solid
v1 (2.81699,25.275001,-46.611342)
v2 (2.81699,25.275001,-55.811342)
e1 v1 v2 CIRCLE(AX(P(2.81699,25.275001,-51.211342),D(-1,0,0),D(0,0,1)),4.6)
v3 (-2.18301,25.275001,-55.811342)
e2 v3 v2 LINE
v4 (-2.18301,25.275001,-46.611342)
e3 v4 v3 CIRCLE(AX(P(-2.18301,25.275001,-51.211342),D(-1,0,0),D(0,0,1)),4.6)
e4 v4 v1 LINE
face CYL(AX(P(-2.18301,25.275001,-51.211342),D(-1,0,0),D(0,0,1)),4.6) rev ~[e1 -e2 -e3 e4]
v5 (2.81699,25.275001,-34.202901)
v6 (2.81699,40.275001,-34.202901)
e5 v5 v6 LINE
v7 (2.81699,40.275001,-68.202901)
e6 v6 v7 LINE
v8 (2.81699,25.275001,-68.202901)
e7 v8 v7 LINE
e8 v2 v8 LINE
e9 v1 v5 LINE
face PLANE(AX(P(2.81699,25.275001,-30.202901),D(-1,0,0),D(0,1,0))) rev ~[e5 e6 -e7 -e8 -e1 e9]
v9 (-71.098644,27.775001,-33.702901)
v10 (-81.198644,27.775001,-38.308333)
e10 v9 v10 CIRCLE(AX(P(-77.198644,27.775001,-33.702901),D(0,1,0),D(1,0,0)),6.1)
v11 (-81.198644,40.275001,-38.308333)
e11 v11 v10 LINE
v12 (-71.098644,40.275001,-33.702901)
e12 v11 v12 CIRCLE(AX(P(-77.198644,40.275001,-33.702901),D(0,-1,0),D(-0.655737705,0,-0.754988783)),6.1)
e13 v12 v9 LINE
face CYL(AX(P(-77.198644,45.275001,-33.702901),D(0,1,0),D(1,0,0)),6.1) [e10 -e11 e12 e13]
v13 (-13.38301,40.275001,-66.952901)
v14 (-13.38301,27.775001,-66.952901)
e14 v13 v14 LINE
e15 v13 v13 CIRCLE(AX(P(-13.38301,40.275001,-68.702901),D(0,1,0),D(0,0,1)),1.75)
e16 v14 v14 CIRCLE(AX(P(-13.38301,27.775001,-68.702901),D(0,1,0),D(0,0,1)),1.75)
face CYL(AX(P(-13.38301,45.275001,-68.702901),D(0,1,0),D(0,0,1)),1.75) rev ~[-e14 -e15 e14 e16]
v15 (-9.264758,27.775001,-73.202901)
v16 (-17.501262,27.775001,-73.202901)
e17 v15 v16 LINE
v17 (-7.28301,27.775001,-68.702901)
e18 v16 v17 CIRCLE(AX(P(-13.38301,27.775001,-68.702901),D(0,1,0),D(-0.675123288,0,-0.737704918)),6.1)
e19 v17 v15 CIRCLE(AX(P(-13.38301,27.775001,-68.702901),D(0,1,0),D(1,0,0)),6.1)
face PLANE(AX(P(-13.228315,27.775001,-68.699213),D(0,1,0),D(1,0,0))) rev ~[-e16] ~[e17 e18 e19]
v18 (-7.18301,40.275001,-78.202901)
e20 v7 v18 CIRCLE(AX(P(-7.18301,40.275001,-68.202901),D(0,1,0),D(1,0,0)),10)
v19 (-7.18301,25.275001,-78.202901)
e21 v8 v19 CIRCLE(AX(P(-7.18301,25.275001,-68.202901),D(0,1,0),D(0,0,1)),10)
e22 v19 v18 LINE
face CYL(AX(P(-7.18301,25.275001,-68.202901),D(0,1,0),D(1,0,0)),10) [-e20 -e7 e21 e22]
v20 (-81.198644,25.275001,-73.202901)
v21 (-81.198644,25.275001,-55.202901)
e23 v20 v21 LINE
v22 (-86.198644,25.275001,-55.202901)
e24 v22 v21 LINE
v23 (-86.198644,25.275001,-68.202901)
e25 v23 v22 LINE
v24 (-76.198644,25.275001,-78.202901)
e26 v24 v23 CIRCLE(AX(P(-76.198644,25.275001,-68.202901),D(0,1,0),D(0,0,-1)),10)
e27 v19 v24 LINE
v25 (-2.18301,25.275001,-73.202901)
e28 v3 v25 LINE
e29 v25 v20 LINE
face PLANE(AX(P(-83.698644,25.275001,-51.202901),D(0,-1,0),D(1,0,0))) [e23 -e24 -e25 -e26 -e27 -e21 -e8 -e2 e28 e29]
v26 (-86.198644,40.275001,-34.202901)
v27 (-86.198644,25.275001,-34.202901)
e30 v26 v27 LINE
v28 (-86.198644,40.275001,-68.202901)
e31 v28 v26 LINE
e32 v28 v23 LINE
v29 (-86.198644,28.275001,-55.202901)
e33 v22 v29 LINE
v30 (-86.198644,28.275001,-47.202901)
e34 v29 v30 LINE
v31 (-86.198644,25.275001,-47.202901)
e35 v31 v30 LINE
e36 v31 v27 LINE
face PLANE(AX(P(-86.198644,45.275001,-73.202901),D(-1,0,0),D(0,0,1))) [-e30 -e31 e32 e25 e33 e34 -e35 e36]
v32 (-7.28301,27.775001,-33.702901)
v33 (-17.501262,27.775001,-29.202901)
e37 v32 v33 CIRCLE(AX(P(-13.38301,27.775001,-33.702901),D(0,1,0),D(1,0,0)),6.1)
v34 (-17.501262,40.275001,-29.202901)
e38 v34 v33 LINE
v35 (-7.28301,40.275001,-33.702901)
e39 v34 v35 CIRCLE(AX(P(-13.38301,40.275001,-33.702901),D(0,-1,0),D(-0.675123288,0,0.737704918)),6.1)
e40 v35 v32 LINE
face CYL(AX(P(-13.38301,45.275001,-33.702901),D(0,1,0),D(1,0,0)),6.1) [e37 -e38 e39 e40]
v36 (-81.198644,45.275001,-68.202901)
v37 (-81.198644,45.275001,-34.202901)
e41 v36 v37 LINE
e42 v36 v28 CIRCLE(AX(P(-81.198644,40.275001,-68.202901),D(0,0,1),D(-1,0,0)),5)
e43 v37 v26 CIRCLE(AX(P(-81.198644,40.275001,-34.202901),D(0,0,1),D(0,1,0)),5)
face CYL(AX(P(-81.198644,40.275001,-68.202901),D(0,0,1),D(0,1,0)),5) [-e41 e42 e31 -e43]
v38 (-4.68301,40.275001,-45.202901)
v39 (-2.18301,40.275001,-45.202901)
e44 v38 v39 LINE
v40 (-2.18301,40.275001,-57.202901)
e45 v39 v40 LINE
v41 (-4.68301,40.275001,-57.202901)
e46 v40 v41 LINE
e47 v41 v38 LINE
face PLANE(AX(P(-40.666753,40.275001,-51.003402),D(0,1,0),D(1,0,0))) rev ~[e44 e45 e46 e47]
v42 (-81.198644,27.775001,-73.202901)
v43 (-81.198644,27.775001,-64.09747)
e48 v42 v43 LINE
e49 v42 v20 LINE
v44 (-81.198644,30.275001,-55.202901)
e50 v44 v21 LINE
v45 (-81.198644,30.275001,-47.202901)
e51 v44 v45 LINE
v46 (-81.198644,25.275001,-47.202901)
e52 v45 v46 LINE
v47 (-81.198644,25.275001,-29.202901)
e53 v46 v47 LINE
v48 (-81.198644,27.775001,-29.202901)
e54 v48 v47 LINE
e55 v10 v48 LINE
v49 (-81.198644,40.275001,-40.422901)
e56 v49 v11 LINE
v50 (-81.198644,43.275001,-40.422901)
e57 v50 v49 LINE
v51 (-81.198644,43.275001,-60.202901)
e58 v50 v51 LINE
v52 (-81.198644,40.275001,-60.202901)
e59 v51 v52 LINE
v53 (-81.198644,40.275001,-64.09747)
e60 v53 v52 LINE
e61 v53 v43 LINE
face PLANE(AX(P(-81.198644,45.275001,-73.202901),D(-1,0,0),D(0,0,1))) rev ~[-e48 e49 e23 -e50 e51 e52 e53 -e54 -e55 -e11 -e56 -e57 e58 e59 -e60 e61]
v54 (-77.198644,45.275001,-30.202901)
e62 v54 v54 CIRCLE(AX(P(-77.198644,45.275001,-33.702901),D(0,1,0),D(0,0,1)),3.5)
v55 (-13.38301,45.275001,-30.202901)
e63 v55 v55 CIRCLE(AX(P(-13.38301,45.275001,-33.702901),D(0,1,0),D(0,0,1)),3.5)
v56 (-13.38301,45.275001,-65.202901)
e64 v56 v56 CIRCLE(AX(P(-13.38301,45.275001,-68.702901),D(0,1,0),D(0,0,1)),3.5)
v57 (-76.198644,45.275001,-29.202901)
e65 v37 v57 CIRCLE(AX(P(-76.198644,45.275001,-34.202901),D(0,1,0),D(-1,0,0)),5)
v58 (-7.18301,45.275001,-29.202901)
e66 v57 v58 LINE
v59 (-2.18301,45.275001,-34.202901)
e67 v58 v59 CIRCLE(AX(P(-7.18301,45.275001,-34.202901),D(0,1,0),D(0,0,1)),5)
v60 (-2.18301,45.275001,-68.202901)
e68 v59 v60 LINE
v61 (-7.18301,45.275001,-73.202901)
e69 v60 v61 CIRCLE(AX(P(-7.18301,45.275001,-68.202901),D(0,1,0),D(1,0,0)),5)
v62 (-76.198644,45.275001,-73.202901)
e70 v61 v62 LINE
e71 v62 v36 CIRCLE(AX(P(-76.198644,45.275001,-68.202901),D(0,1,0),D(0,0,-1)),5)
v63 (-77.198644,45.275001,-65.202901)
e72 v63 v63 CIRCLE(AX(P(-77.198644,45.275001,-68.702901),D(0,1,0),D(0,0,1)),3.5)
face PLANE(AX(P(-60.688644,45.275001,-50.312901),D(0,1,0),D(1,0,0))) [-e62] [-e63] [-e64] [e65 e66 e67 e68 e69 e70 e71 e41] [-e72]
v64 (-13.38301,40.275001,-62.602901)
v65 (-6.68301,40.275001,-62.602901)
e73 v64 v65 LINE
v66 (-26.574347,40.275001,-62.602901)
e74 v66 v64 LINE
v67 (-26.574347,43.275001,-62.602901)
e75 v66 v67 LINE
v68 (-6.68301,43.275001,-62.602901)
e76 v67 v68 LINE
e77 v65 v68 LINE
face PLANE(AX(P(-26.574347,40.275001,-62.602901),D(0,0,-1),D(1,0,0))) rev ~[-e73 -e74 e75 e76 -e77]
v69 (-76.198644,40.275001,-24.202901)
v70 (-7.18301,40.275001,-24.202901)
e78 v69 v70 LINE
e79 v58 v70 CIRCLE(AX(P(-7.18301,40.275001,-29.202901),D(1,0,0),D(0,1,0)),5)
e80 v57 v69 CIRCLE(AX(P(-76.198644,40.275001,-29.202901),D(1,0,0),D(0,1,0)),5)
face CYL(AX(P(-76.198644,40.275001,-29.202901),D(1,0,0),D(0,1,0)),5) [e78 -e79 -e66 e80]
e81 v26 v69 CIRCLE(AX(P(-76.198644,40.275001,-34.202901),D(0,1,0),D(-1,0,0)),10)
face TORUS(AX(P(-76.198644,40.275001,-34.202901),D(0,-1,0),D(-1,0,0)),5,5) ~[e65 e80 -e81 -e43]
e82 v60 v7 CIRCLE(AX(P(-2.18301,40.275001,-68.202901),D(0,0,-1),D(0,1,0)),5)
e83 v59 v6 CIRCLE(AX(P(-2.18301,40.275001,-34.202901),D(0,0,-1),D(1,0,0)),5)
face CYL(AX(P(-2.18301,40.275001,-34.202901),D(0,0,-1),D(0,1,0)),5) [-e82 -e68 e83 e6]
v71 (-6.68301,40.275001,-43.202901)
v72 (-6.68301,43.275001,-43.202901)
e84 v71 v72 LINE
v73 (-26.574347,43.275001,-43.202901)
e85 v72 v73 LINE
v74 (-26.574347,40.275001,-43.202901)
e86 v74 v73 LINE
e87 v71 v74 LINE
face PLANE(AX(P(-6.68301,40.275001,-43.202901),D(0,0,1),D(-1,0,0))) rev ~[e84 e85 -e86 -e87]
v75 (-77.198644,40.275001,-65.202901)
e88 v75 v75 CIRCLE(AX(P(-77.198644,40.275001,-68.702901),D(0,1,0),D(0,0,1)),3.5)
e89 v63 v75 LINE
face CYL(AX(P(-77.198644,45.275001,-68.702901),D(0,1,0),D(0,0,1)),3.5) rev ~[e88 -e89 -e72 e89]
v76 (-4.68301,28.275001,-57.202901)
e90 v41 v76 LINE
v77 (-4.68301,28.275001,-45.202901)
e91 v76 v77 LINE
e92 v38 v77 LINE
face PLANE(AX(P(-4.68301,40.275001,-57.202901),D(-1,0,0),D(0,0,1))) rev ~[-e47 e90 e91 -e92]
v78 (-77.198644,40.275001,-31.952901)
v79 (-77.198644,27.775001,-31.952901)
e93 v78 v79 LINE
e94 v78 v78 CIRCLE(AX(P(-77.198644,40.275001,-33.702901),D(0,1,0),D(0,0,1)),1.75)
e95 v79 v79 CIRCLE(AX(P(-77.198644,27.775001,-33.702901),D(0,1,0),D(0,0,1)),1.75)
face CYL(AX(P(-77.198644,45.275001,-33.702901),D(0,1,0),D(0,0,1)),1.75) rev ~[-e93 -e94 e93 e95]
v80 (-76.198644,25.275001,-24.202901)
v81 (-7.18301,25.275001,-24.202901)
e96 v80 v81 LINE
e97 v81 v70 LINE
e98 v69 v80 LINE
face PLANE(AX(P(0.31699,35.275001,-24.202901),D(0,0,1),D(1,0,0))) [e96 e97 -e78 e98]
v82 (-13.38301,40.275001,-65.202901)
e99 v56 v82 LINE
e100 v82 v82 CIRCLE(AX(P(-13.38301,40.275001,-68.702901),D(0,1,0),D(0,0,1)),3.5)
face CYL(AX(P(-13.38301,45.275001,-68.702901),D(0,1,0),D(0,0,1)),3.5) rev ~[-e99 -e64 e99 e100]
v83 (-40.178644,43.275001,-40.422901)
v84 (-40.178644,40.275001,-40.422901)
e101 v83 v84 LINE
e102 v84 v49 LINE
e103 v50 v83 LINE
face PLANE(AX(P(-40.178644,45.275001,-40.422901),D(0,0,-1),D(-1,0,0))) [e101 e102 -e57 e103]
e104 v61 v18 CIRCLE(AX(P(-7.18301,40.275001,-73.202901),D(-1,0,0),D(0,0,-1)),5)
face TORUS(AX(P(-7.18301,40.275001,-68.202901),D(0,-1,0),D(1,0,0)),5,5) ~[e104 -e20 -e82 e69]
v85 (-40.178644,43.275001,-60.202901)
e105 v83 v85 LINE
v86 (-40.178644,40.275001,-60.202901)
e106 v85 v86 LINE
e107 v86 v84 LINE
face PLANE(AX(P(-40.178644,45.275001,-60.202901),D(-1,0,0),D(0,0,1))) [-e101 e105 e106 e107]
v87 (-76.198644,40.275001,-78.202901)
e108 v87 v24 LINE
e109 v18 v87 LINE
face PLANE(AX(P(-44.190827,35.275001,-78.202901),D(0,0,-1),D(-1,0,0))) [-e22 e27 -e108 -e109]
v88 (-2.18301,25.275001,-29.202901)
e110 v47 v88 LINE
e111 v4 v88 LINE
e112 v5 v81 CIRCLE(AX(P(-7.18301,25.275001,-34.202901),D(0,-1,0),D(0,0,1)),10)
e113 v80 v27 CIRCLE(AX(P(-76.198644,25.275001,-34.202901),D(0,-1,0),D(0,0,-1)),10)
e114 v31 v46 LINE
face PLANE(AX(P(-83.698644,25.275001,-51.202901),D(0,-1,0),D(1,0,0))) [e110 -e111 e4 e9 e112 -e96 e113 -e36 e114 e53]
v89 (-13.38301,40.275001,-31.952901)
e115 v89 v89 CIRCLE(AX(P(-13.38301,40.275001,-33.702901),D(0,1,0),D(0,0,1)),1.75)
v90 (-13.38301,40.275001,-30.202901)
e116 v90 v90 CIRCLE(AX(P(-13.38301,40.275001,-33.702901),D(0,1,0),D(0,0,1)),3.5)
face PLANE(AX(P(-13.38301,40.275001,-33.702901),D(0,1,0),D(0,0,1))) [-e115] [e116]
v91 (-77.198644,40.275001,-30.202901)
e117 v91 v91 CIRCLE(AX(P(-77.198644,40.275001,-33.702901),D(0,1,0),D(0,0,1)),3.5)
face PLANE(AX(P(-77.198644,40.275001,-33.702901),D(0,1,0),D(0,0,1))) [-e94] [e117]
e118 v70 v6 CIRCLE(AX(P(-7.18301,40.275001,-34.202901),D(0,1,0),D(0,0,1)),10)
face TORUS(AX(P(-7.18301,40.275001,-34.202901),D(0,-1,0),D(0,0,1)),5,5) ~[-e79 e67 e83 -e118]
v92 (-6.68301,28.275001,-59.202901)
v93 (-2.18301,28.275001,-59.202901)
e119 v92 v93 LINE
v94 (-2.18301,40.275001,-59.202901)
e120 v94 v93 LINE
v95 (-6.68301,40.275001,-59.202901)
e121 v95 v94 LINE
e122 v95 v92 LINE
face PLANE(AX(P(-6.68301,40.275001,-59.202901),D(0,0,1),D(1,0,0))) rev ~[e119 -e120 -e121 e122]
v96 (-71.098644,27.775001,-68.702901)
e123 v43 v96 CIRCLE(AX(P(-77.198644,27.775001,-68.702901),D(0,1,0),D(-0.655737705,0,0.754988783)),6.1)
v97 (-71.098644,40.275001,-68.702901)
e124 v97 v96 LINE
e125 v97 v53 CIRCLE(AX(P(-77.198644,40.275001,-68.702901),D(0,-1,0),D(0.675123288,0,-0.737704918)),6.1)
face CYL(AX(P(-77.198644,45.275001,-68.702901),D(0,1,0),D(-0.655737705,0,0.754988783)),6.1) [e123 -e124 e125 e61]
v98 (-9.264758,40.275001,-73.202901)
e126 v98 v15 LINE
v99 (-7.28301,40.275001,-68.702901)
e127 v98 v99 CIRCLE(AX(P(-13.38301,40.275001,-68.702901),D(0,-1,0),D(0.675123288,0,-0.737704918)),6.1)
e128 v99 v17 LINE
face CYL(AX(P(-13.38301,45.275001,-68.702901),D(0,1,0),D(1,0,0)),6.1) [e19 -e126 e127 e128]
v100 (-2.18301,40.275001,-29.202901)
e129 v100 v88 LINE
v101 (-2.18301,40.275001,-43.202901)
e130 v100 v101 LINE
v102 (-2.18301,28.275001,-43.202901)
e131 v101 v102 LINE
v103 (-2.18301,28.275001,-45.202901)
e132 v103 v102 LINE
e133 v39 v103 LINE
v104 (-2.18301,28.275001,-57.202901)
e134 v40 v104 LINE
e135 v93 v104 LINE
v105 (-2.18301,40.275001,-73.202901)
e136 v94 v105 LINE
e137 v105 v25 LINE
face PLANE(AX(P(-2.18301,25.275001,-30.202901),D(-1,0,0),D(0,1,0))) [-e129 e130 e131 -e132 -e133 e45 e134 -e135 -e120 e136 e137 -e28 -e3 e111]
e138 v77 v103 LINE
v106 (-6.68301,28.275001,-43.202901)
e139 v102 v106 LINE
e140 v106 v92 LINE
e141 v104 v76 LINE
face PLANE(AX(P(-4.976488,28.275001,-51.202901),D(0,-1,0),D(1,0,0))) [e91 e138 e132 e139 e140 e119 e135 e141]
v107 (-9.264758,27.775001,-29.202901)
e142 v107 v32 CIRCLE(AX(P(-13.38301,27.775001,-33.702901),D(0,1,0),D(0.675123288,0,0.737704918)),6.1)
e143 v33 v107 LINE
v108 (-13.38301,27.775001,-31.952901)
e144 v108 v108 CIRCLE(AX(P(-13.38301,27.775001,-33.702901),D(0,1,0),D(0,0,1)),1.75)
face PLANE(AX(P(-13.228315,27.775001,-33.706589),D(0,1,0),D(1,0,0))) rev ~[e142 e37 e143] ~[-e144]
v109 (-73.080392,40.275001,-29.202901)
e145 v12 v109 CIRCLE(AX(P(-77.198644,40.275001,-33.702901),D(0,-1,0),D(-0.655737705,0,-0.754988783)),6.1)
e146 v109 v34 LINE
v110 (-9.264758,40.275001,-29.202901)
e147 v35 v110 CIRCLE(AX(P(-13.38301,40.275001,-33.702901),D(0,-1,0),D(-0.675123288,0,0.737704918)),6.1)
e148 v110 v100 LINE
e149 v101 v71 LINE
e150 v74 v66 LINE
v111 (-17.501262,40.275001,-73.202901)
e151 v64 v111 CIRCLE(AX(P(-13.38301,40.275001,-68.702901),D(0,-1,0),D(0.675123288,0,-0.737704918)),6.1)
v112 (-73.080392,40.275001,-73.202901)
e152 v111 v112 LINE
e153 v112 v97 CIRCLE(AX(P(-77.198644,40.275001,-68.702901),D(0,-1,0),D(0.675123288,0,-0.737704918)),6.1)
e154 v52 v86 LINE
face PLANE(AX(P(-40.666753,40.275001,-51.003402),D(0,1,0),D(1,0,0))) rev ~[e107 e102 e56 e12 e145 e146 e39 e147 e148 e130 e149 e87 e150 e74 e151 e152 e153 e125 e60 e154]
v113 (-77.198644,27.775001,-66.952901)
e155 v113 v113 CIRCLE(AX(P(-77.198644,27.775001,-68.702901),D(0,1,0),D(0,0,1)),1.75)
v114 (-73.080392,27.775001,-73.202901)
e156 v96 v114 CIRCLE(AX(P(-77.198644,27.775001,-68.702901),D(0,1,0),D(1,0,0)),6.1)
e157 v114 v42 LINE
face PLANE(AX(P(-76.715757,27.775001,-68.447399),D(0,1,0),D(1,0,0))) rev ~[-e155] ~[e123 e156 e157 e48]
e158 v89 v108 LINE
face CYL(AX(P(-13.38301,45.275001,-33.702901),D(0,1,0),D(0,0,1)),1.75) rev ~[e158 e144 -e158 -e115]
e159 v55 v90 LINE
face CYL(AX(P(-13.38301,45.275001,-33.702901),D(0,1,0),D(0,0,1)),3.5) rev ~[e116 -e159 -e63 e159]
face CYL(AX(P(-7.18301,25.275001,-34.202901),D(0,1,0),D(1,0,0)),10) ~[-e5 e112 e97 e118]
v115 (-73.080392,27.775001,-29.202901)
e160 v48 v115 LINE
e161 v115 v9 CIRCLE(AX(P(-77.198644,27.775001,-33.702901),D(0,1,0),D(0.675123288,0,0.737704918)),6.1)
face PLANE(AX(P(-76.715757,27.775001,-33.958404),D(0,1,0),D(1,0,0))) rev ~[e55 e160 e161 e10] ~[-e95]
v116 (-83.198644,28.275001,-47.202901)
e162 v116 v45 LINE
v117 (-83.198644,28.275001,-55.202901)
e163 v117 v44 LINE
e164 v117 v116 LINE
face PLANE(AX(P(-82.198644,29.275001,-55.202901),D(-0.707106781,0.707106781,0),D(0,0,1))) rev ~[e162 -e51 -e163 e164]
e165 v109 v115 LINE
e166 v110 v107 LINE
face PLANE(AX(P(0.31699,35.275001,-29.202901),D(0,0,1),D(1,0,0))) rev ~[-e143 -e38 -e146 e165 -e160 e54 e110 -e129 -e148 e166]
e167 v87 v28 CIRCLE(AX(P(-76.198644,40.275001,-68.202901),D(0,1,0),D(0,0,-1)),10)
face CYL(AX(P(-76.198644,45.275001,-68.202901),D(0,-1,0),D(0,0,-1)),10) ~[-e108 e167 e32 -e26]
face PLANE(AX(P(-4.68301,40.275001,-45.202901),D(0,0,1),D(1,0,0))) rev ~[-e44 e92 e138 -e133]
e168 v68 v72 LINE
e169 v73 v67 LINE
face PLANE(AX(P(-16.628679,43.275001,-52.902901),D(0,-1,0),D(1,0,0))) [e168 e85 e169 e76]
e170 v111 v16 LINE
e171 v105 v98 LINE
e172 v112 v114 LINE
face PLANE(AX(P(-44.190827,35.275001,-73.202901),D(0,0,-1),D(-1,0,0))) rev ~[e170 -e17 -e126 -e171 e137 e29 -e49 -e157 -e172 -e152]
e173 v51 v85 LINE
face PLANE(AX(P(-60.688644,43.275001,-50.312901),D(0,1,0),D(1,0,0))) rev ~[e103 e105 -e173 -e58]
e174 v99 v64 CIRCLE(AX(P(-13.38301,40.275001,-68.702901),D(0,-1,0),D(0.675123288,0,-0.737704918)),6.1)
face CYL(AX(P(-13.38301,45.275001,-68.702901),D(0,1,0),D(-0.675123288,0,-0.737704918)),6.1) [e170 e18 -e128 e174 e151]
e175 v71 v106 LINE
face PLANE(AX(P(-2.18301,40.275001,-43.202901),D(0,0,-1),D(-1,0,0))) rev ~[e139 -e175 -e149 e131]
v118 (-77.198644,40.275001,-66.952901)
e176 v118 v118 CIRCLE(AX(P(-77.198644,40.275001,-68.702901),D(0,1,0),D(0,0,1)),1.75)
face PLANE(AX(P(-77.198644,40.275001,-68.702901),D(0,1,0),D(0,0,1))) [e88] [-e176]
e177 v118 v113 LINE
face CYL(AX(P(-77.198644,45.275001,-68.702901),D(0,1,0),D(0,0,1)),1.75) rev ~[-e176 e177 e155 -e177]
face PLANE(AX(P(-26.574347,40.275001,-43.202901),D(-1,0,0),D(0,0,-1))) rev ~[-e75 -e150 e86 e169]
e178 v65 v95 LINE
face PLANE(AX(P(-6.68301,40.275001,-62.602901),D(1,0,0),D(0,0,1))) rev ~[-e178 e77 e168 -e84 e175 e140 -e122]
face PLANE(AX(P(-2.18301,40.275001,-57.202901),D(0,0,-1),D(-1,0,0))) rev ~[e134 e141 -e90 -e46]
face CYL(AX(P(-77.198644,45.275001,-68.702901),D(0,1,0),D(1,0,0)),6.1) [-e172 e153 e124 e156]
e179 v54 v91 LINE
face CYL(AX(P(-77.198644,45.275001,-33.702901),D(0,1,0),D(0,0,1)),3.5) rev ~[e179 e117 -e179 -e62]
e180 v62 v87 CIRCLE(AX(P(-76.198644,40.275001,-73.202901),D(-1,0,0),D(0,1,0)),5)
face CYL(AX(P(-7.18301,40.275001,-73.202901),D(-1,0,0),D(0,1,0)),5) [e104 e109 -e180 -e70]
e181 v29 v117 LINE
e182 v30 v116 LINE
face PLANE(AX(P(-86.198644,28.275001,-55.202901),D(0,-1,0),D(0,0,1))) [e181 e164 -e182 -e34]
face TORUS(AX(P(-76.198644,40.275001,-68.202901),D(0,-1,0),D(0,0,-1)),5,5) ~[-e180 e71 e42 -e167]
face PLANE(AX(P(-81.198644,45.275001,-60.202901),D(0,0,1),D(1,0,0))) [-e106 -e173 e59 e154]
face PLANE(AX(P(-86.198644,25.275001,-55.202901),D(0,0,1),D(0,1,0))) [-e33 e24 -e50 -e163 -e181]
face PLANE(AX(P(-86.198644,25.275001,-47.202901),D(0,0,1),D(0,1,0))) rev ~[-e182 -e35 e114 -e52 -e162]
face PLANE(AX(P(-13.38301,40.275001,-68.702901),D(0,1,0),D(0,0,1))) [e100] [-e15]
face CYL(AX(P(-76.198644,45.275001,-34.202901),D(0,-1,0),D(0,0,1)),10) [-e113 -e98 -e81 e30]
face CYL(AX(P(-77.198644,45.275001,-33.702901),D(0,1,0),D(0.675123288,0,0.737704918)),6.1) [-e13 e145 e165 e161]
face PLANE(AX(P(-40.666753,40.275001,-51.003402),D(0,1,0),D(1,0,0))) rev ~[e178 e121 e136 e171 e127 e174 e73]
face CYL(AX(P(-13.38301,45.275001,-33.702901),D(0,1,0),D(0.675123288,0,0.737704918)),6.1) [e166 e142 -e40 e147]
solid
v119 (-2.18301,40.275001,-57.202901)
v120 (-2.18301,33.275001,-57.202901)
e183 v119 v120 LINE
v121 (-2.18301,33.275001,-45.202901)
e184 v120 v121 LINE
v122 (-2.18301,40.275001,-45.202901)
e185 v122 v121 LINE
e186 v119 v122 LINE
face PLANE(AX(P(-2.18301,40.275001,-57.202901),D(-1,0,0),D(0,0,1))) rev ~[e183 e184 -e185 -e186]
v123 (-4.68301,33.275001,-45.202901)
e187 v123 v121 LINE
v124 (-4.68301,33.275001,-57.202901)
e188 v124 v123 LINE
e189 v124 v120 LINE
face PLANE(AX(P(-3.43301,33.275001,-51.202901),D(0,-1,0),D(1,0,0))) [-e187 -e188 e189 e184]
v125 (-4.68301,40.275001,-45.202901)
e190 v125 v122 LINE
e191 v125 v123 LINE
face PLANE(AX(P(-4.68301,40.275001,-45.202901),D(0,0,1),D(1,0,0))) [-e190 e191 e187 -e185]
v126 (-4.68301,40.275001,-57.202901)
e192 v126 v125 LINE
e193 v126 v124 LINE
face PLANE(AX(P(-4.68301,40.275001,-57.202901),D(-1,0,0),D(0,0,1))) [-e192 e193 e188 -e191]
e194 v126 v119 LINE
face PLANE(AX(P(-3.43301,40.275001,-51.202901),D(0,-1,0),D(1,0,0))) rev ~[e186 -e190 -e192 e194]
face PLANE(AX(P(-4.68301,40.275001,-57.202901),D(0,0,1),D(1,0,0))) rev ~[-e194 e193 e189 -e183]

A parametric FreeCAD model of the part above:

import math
import FreeCAD as App
import Part
import Sketcher
from FreeCAD import Vector
Q = App.Units.Quantity


def edges_at(feature, points):
    """Names of the edges that pass closest to the given points."""
    edges = feature.Shape.Edges
    near = lambda p: min(range(len(edges)), key=lambda i: edges[i].distToShape(Part.Vertex(*p))[0])
    return sorted({f"Edge{near(p) + 1}" for p in points})


def add_polygon(sketch, points):
    """Adds a closed chain of lines whose ends are joined by coincident constraints."""
    first, n = sketch.GeometryCount, len(points)
    for a, b in zip(points, points[1:] + points[:1]):
        sketch.addGeometry(Part.LineSegment(App.Vector(*a, 0), App.Vector(*b, 0)), False)
    for i in range(n):
        sketch.addConstraint(Sketcher.Constraint("Coincident", first + i, 2, first + (i + 1) % n, 1))

doc = App.newDocument("Part")
params = doc.addObject("Spreadsheet::Sheet", "Params")
for row, (alias, value) in enumerate([
    ("sketch1_radius", "4.6 mm"),
    ("sketch1_width", "20 mm"),
    ("sketch1_height", "42 mm"),
    ("pad1_length", "5 mm"),
    ("sketch2_diameter", "3.5 mm"),
    ("sketch2_height", "54 mm"),
    ("pad2_length", "10 mm"),
    ("sketch3_height", "20 mm"),
    ("pad3_length", "5 mm"),
    ("sketch4_height", "20 mm"),
    ("pad4_length", "5 mm"),
    ("sketch5_width", "5 mm"),
    ("sketch5_height", "20 mm"),
    ("pad5_length", "5 mm"),
    ("sketch6_width", "5 mm"),
    ("sketch6_height", "20 mm"),
    ("pad6_length", "5 mm"),
    ("sketch7_width", "5 mm"),
    ("sketch7_height", "44 mm"),
    ("pad7_length", "20 mm"),
    ("sketch8_height", "54 mm"),
    ("pocket1_length", "10 mm"),
    ("sketch9_diameter", "3.5 mm"),
    ("sketch9_radius", "6.1 mm"),
    ("pad8_length", "17.5 mm"),
    ("sketch10_width", "3 mm"),
    ("sketch10_height", "8 mm"),
    ("pocket2_length", "10 mm"),
    ("sketch11_radius", "6.1 mm"),
    ("sketch11_height", "44 mm"),
    ("sketch11_width", "41.02 mm"),
    ("sketch11_height2", "19.78 mm"),
    ("pad9_length", "5 mm"),
    ("sketch12_width", "41.02 mm"),
    ("sketch12_height", "19.78 mm"),
    ("pad10_length", "2 mm"),
    ("sketch13_diameter", "7 mm"),
    ("sketch13_diameter2", "3.5 mm"),
    ("pocket3_length", "5 mm"),
    ("fillet_radius", "10 mm"),
    ("fillet2_radius", "5 mm"),
    ("sketch14_height", "2 mm"),
    ("sketch14_height2", "16 mm"),
    ("sketch14_width", "2.5 mm"),
    ("sketch14_width2", "4.5 mm"),
    ("pad11_length", "12 mm"),
    ("sketch15_height", "19.4 mm"),
    ("pocket4_length", "3 mm"),
    ("chamfer_size", "2 mm"),
    ("sketch16_height", "12 mm"),
    ("sketch16_width", "2.5 mm"),
    ("pad12_length", "7 mm"),
], start=1):
    params.set(f"A{row}", alias)
    params.set(f"B{row}", "=" + value)
    params.setAlias(f"B{row}", alias)

body = doc.addObject("PartDesign::Body", "Body")

# Sketch on YZ plane
sketch1 = doc.addObject("Sketcher::SketchObject", "Sketch")
body.addObject(sketch1)
sketch1.AttachmentSupport = (doc.YZ_Plane, [""])
sketch1.MapMode = "FlatFace"
sketch1.AttachmentOffset = App.Placement(Vector(0, 0, -2.18301), App.Rotation())
sketch1.addGeometry([
    Part.LineSegment(Vector(25.3, -30.2, 0), Vector(25.3, -46.6, 0)),  # 0
    Part.ArcOfCircle(Part.Circle(Vector(25.3, -51.2, 0), Vector(0, 0, 1), 4.6), math.radians(-90), math.radians(90)),  # 1
    Part.LineSegment(Vector(25.3, -55.8, 0), Vector(25.3, -72.2, 0)),  # 2
    Part.LineSegment(Vector(25.3, -72.2, 0), Vector(45.3, -72.2, 0)),  # 3
    Part.LineSegment(Vector(45.3, -72.2, 0), Vector(45.3, -30.2, 0)),  # 4
    Part.LineSegment(Vector(45.3, -30.2, 0), Vector(25.3, -30.2, 0)),  # 5
], False)
sketch1.addConstraint([
    Sketcher.Constraint("Coincident", 0, 2, 1, 2),
    Sketcher.Constraint("Coincident", 1, 1, 2, 1),
    Sketcher.Constraint("Coincident", 2, 2, 3, 1),
    Sketcher.Constraint("Coincident", 3, 2, 4, 1),
    Sketcher.Constraint("Coincident", 4, 2, 5, 1),
    Sketcher.Constraint("Coincident", 5, 2, 0, 1),
    Sketcher.Constraint("Vertical", 0),
    Sketcher.Constraint("Vertical", 2),
    Sketcher.Constraint("Horizontal", 3),
    Sketcher.Constraint("Vertical", 4),
    Sketcher.Constraint("Horizontal", 5),
    Sketcher.Constraint("Vertical", 1, 3, 0, 2),
    Sketcher.Constraint("Vertical", 0, 2, 1, 1),
    Sketcher.Constraint("Radius", 1, Q("4.6 mm")),
    Sketcher.Constraint("DistanceX", 3, 1, 3, 2, Q("20 mm")),
    Sketcher.Constraint("DistanceY", 4, 1, 4, 2, Q("42 mm")),
    Sketcher.Constraint("DistanceX", -1, 1, 1, 3, Q("25.275001 mm")),
    Sketcher.Constraint("DistanceY", 0, 2, 0, 1, Q("16.408441 mm")),
    Sketcher.Constraint("DistanceY", 2, 2, -1, 1, Q("72.202901 mm")),
])
sketch1.setExpression("Constraints[13]", "Params.sketch1_radius")
sketch1.setExpression("Constraints[14]", "Params.sketch1_width")
sketch1.setExpression("Constraints[15]", "Params.sketch1_height")
pad1 = doc.addObject("PartDesign::Pad", "Pad")
body.addObject(pad1)
pad1.Profile = sketch1
pad1.setExpression("Length", "Params.pad1_length")

# Sketch on XZ plane
sketch2 = doc.addObject("Sketcher::SketchObject", "Sketch001")
body.addObject(sketch2)
sketch2.AttachmentSupport = (doc.XZ_Plane, [""])
sketch2.MapMode = "FlatFace"
sketch2.AttachmentOffset = App.Placement(Vector(0, 0, -45.275001), App.Rotation())
add_polygon(sketch2, [(-86.2, -78.2), (-86.2, -24.2), (2.8, -24.2), (2.8, -78.2)])  # lines 0-3
sketch2.addGeometry(Part.Circle(Vector(-77.2, -33.7, 0), Vector(0, 0, 1), 1.8), False)  # 4
sketch2.addGeometry(Part.Circle(Vector(-13.4, -33.7, 0), Vector(0, 0, 1), 1.8), False)  # 5
sketch2.addGeometry(Part.Circle(Vector(-77.2, -68.7, 0), Vector(0, 0, 1), 1.8), False)  # 6
sketch2.addGeometry(Part.Circle(Vector(-13.4, -68.7, 0), Vector(0, 0, 1), 1.8), False)  # 7
sketch2.addConstraint([
    Sketcher.Constraint("Vertical", 0),
    Sketcher.Constraint("Horizontal", 1),
    Sketcher.Constraint("Vertical", 2),
    Sketcher.Constraint("Horizontal", 3),
    Sketcher.Constraint("Equal", 4, 5),
    Sketcher.Constraint("Equal", 5, 6),
    Sketcher.Constraint("Equal", 6, 7),
    Sketcher.Constraint("Horizontal", 4, 3, 5, 3),
    Sketcher.Constraint("Horizontal", 6, 3, 7, 3),
    Sketcher.Constraint("Vertical", 4, 3, 6, 3),
    Sketcher.Constraint("Vertical", 5, 3, 7, 3),
    Sketcher.Constraint("Diameter", 4, Q("3.5 mm")),
    Sketcher.Constraint("DistanceY", 0, 1, 0, 2, Q("54 mm")),
    Sketcher.Constraint("DistanceY", 6, 3, 4, 3, Q("35 mm")),
    Sketcher.Constraint("DistanceX", 0, 2, 4, 3, Q("9 mm")),
    Sketcher.Constraint("DistanceY", 4, 3, 0, 2, Q("9.5 mm")),
    Sketcher.Constraint("DistanceX", 5, 3, 1, 2, Q("16.2 mm")),
    Sketcher.Constraint("DistanceY", 4, 3, -1, 1, Q("33.702901 mm")),
    Sketcher.Constraint("DistanceX", 1, 1, 1, 2, Q("89.015634 mm")),
    Sketcher.Constraint("DistanceX", 5, 3, -1, 1, Q("13.38301 mm")),
])
sketch2.setExpression("Constraints[15]", "Params.sketch2_diameter")
sketch2.setExpression("Constraints[16]", "Params.sketch2_height")
pad2 = doc.addObject("PartDesign::Pad", "Pad001")
body.addObject(pad2)
pad2.Profile = sketch2
pad2.setExpression("Length", "Params.pad2_length")
pad2.Reversed = True

# Sketch on XY plane
sketch3 = doc.addObject("Sketcher::SketchObject", "Sketch002")
body.addObject(sketch3)
sketch3.AttachmentSupport = (doc.XY_Plane, [""])
sketch3.MapMode = "FlatFace"
sketch3.AttachmentOffset = App.Placement(Vector(0, 0, -24.202901), App.Rotation())
add_polygon(sketch3, [(3, 25), (3, 45), (-86, 45), (-86, 25)])  # lines 0-3
sketch3.addConstraint([
    Sketcher.Constraint("Vertical", 0),
    Sketcher.Constraint("Horizontal", 1),
    Sketcher.Constraint("Vertical", 2),
    Sketcher.Constraint("Horizontal", 3),
    Sketcher.Constraint("DistanceY", 0, 1, 0, 2, Q("20 mm")),
    Sketcher.Constraint("DistanceY", -1, 1, 0, 2, Q("45.275001 mm")),
    Sketcher.Constraint("DistanceX", 1, 2, 1, 1, Q("89.015634 mm")),
    Sketcher.Constraint("DistanceX", -1, 1, 0, 2, Q("2.81699 mm")),
])
sketch3.setExpression("Constraints[8]", "Params.sketch3_height")
pad3 = doc.addObject("PartDesign::Pad", "Pad002")
body.addObject(pad3)
pad3.Profile = sketch3
pad3.setExpression("Length", "Params.pad3_length")
pad3.Reversed = True

# Sketch on XY plane
sketch4 = doc.addObject("Sketcher::SketchObject", "Sketch003")
body.addObject(sketch4)
sketch4.AttachmentSupport = (doc.XY_Plane, [""])
sketch4.MapMode = "FlatFace"
sketch4.AttachmentOffset = App.Placement(Vector(0, 0, -78.202901), App.Rotation())
add_polygon(sketch4, [(-86, 25), (-86, 45), (3, 45), (3, 25)])  # lines 0-3
sketch4.addConstraint([
    Sketcher.Constraint("Vertical", 0),
    Sketcher.Constraint("Horizontal", 1),
    Sketcher.Constraint("Vertical", 2),
    Sketcher.Constraint("Horizontal", 3),
    Sketcher.Constraint("DistanceY", 0, 1, 0, 2, Q("20 mm")),
    Sketcher.Constraint("DistanceY", -1, 1, 0, 2, Q("45.275001 mm")),
    Sketcher.Constraint("DistanceX", 1, 1, 1, 2, Q("89.015634 mm")),
    Sketcher.Constraint("DistanceX", -1, 1, 1, 2, Q("2.81699 mm")),
])
sketch4.setExpression("Constraints[8]", "Params.sketch4_height")
pad4 = doc.addObject("PartDesign::Pad", "Pad003")
body.addObject(pad4)
pad4.Profile = sketch4
pad4.setExpression("Length", "Params.pad4_length")

# Sketch on XY plane
sketch5 = doc.addObject("Sketcher::SketchObject", "Sketch004")
body.addObject(sketch5)
sketch5.AttachmentSupport = (doc.XY_Plane, [""])
sketch5.MapMode = "FlatFace"
sketch5.AttachmentOffset = App.Placement(Vector(0, 0, -72.202901), App.Rotation())
add_polygon(sketch5, [(3, 45), (3, 25), (-2, 25), (-2, 45)])  # lines 0-3
sketch5.addConstraint([
    Sketcher.Constraint("Vertical", 0),
    Sketcher.Constraint("Horizontal", 1),
    Sketcher.Constraint("Vertical", 2),
    Sketcher.Constraint("Horizontal", 3),
    Sketcher.Constraint("DistanceX", 1, 2, 1, 1, Q("5 mm")),
    Sketcher.Constraint("DistanceY", 0, 2, 0, 1, Q("20 mm")),
    Sketcher.Constraint("DistanceY", -1, 1, 0, 2, Q("25.275001 mm")),
    Sketcher.Constraint("DistanceX", -1, 1, 0, 2, Q("2.81699 mm")),
])
sketch5.setExpression("Constraints[8]", "Params.sketch5_width")
sketch5.setExpression("Constraints[9]", "Params.sketch5_height")
pad5 = doc.addObject("PartDesign::Pad", "Pad004")
body.addObject(pad5)
pad5.Profile = sketch5
pad5.setExpression("Length", "Params.pad5_length")
pad5.Reversed = True

# Sketch on XY plane
sketch6 = doc.addObject("Sketcher::SketchObject", "Sketch005")
body.addObject(sketch6)
sketch6.AttachmentSupport = (doc.XY_Plane, [""])
sketch6.MapMode = "FlatFace"
sketch6.AttachmentOffset = App.Placement(Vector(0, 0, -30.202901), App.Rotation())
add_polygon(sketch6, [(-2, 45), (-2, 25), (3, 25), (3, 45)])  # lines 0-3
sketch6.addConstraint([
    Sketcher.Constraint("Vertical", 0),
    Sketcher.Constraint("Horizontal", 1),
    Sketcher.Constraint("Vertical", 2),
    Sketcher.Constraint("Horizontal", 3),
    Sketcher.Constraint("DistanceX", 1, 1, 1, 2, Q("5 mm")),
    Sketcher.Constraint("DistanceY", 0, 2, 0, 1, Q("20 mm")),
    Sketcher.Constraint("DistanceY", -1, 1, 0, 2, Q("25.275001 mm")),
    Sketcher.Constraint("DistanceX", 0, 2, -1, 1, Q("2.18301 mm")),
])
sketch6.setExpression("Constraints[8]", "Params.sketch6_width")
sketch6.setExpression("Constraints[9]", "Params.sketch6_height")
pad6 = doc.addObject("PartDesign::Pad", "Pad005")
body.addObject(pad6)
pad6.Profile = sketch6
pad6.setExpression("Length", "Params.pad6_length")

# Sketch on XZ plane
sketch7 = doc.addObject("Sketcher::SketchObject", "Sketch006")
body.addObject(sketch7)
sketch7.AttachmentSupport = (doc.XZ_Plane, [""])
sketch7.MapMode = "FlatFace"
sketch7.AttachmentOffset = App.Placement(Vector(0, 0, -45.275001), App.Rotation())
add_polygon(sketch7, [(-86, -29), (-86, -73), (-81, -73), (-81, -29)])  # lines 0-3
sketch7.addConstraint([
    Sketcher.Constraint("Vertical", 0),
    Sketcher.Constraint("Horizontal", 1),
    Sketcher.Constraint("Vertical", 2),
    Sketcher.Constraint("Horizontal", 3),
    Sketcher.Constraint("DistanceX", 1, 1, 1, 2, Q("5 mm")),
    Sketcher.Constraint("DistanceY", 0, 2, 0, 1, Q("44 mm")),
    Sketcher.Constraint("DistanceY", 0, 2, -1, 1, Q("73.202901 mm")),
    Sketcher.Constraint("DistanceX", 0, 2, -1, 1, Q("86.198644 mm")),
])
sketch7.setExpression("Constraints[8]", "Params.sketch7_width")
sketch7.setExpression("Constraints[9]", "Params.sketch7_height")
pad7 = doc.addObject("PartDesign::Pad", "Pad006")
body.addObject(pad7)
pad7.Profile = sketch7
pad7.setExpression("Length", "Params.pad7_length")

# Sketch on XZ plane
sketch8 = doc.addObject("Sketcher::SketchObject", "Sketch007")
body.addObject(sketch8)
sketch8.AttachmentSupport = (doc.XZ_Plane, [""])
sketch8.MapMode = "FlatFace"
sketch8.AttachmentOffset = App.Placement(Vector(0, 0, -55.275001), App.Rotation())
add_polygon(sketch8, [(-86, -78), (-86, -24), (3, -24), (3, -78)])  # lines 0-3
sketch8.addConstraint([
    Sketcher.Constraint("Vertical", 0),
    Sketcher.Constraint("Horizontal", 1),
    Sketcher.Constraint("Vertical", 2),
    Sketcher.Constraint("Horizontal", 3),
    Sketcher.Constraint("DistanceY", 0, 1, 0, 2, Q("54 mm")),
    Sketcher.Constraint("DistanceY", 0, 2, -1, 1, Q("24.202901 mm")),
    Sketcher.Constraint("DistanceX", 1, 1, 1, 2, Q("89.015634 mm")),
    Sketcher.Constraint("DistanceX", -1, 1, 1, 2, Q("2.81699 mm")),
])
sketch8.setExpression("Constraints[8]", "Params.sketch8_height")
pocket1 = doc.addObject("PartDesign::Pocket", "Pocket")
body.addObject(pocket1)
pocket1.Profile = sketch8
pocket1.setExpression("Length", "Params.pocket1_length")
pocket1.Reversed = True

# Sketch on XZ plane
sketch9 = doc.addObject("Sketcher::SketchObject", "Sketch008")
body.addObject(sketch9)
sketch9.AttachmentSupport = (doc.XZ_Plane, [""])
sketch9.MapMode = "FlatFace"
sketch9.AttachmentOffset = App.Placement(Vector(0, 0, -45.275001), App.Rotation())
sketch9.addGeometry([
    Part.ArcOfCircle(Part.Circle(Vector(-77.2, -33.7, 0), Vector(0, 0, 1), 6.1), math.radians(-131), math.radians(0)),  # 0
    Part.LineSegment(Vector(-81.2, -38.3, 0), Vector(-81.2, -29.2, 0)),  # 1
    Part.LineSegment(Vector(-81.2, -29.2, 0), Vector(-73.1, -29.2, 0)),  # 2
    Part.ArcOfCircle(Part.Circle(Vector(-77.2, -33.7, 0), Vector(0, 0, 1), 6.1), math.radians(0), math.radians(48)),  # 3
    Part.Circle(Vector(-77.2, -33.7, 0), Vector(0, 0, 1), 1.8),  # 4
    Part.ArcOfCircle(Part.Circle(Vector(-77.2, -68.7, 0), Vector(0, 0, 1), 6.1), math.radians(-48), math.radians(0)),  # 5
    Part.LineSegment(Vector(-73.1, -73.2, 0), Vector(-81.2, -73.2, 0)),  # 6
    Part.LineSegment(Vector(-81.2, -73.2, 0), Vector(-81.2, -64.1, 0)),  # 7
    Part.ArcOfCircle(Part.Circle(Vector(-77.2, -68.7, 0), Vector(0, 0, 1), 6.1), math.radians(0), math.radians(131)),  # 8
    Part.Circle(Vector(-77.2, -68.7, 0), Vector(0, 0, 1), 1.8),  # 9
    Part.ArcOfCircle(Part.Circle(Vector(-13.4, -33.7, 0), Vector(0, 0, 1), 6.1), math.radians(132), math.radians(360)),  # 10
    Part.LineSegment(Vector(-17.5, -29.2, 0), Vector(-9.3, -29.2, 0)),  # 11
    Part.ArcOfCircle(Part.Circle(Vector(-13.4, -33.7, 0), Vector(0, 0, 1), 6.1), math.radians(0), math.radians(48)),  # 12
    Part.Circle(Vector(-13.4, -33.7, 0), Vector(0, 0, 1), 1.8),  # 13
    Part.ArcOfCircle(Part.Circle(Vector(-13.4, -68.7, 0), Vector(0, 0, 1), 6.1), math.radians(0), math.radians(228)),  # 14
    Part.ArcOfCircle(Part.Circle(Vector(-13.4, -68.7, 0), Vector(0, 0, 1), 6.1), math.radians(-48), math.radians(0)),  # 15
    Part.LineSegment(Vector(-9.3, -73.2, 0), Vector(-17.5, -73.2, 0)),  # 16
    Part.Circle(Vector(-13.4, -68.7, 0), Vector(0, 0, 1), 1.8),  # 17
], False)
sketch9.addConstraint([
    Sketcher.Constraint("Coincident", 0, 1, 1, 1),
    Sketcher.Constraint("Coincident", 1, 2, 2, 1),
    Sketcher.Constraint("Coincident", 2, 2, 3, 2),
    Sketcher.Constraint("Tangent", 3, 1, 0, 2),
    Sketcher.Constraint("Coincident", 5, 1, 6, 1),
    Sketcher.Constraint("Coincident", 6, 2, 7, 1),
    Sketcher.Constraint("Coincident", 7, 2, 8, 2),
    Sketcher.Constraint("Tangent", 8, 1, 5, 2),
    Sketcher.Constraint("Coincident", 10, 1, 11, 1),
    Sketcher.Constraint("Coincident", 11, 2, 12, 2),
    Sketcher.Constraint("Tangent", 12, 1, 10, 2),
    Sketcher.Constraint("Tangent", 14, 1, 15, 2),
    Sketcher.Constraint("Coincident", 15, 1, 16, 1),
    Sketcher.Constraint("Coincident", 16, 2, 14, 2),
    Sketcher.Constraint("Vertical", 1),
    Sketcher.Constraint("Horizontal", 2),
    Sketcher.Constraint("Horizontal", 6),
    Sketcher.Constraint("Vertical", 7),
    Sketcher.Constraint("Horizontal", 11),
    Sketcher.Constraint("Horizontal", 16),
    Sketcher.Constraint("Coincident", 4, 3, 0, 3),
    Sketcher.Constraint("Coincident", 9, 3, 5, 3),
    Sketcher.Constraint("Coincident", 13, 3, 10, 3),
    Sketcher.Constraint("Coincident", 17, 3, 14, 3),
    Sketcher.Constraint("Equal", 0, 3),
    Sketcher.Constraint("Equal", 3, 5),
    Sketcher.Constraint("Equal", 5, 8),
    Sketcher.Constraint("Equal", 4, 9),
    Sketcher.Constraint("Equal", 8, 10),
    Sketcher.Constraint("Equal", 10, 12),
    Sketcher.Constraint("Equal", 9, 13),
    Sketcher.Constraint("Equal", 12, 14),
    Sketcher.Constraint("Equal", 14, 15),
    Sketcher.Constraint("Equal", 13, 17),
    Sketcher.Constraint("Horizontal", 4, 3, 10, 3),
    Sketcher.Constraint("Horizontal", 9, 3, 14, 3),
    Sketcher.Constraint("Horizontal", 13, 3, 3, 1),
    Sketcher.Constraint("Horizontal", 17, 3, 8, 1),
    Sketcher.Constraint("Horizontal", 2, 2, 10, 1),
    Sketcher.Constraint("Horizontal", 3, 1, 12, 1),
    Sketcher.Constraint("Horizontal", 8, 1, 14, 1),
    Sketcher.Constraint("Horizontal", 6, 2, 15, 1),
    Sketcher.Constraint("Vertical", 4, 3, 5, 3),
    Sketcher.Constraint("Vertical", 13, 3, 14, 3),
    Sketcher.Constraint("Vertical", 2, 2, 5, 1),
    Sketcher.Constraint("Vertical", 1, 2, 6, 2),
    Sketcher.Constraint("Diameter", 4, Q("3.5 mm")),
    Sketcher.Constraint("Radius", 0, Q("6.1 mm")),
    Sketcher.Constraint("DistanceY", 5, 3, 4, 3, Q("35 mm")),
    Sketcher.Constraint("DistanceX", 0, 1, 4, 3, Q("4 mm")),
    Sketcher.Constraint("DistanceY", 0, 3, 1, 2, Q("4.5 mm")),
    Sketcher.Constraint("DistanceY", 0, 3, -1, 1, Q("33.702901 mm")),
    Sketcher.Constraint("DistanceX", 10, 3, -1, 1, Q("13.38301 mm")),
    Sketcher.Constraint("DistanceX", 2, 2, -1, 1, Q("73.080392 mm")),
])
sketch9.setExpression("Constraints[46]", "Params.sketch9_diameter")
sketch9.setExpression("Constraints[47]", "Params.sketch9_radius")
pad8 = doc.addObject("PartDesign::Pad", "Pad007")
body.addObject(pad8)
pad8.Profile = sketch9
pad8.setExpression("Length", "Params.pad8_length")

# Sketch on YZ plane
sketch10 = doc.addObject("Sketcher::SketchObject", "Sketch009")
body.addObject(sketch10)
sketch10.AttachmentSupport = (doc.YZ_Plane, [""])
sketch10.MapMode = "FlatFace"
sketch10.AttachmentOffset = App.Placement(Vector(0, 0, -86.198644), App.Rotation())
add_polygon(sketch10, [(28.3, -55.2), (25.3, -55.2), (25.3, -47.2), (28.3, -47.2)])  # lines 0-3
sketch10.addConstraint([
    Sketcher.Constraint("Horizontal", 0),
    Sketcher.Constraint("Vertical", 1),
    Sketcher.Constraint("Horizontal", 2),
    Sketcher.Constraint("Vertical", 3),
    Sketcher.Constraint("DistanceX", 0, 2, 0, 1, Q("3 mm")),
    Sketcher.Constraint("DistanceY", 1, 1, 1, 2, Q("8 mm")),
    Sketcher.Constraint("DistanceX", -1, 1, 0, 2, Q("25.275001 mm")),
    Sketcher.Constraint("DistanceY", 0, 2, -1, 1, Q("55.202901 mm")),
])
sketch10.setExpression("Constraints[8]", "Params.sketch10_width")
sketch10.setExpression("Constraints[9]", "Params.sketch10_height")
pocket2 = doc.addObject("PartDesign::Pocket", "Pocket001")
body.addObject(pocket2)
pocket2.Profile = sketch10
pocket2.setExpression("Length", "Params.pocket2_length")
pocket2.Reversed = True

# Sketch on XZ plane
sketch11 = doc.addObject("Sketcher::SketchObject", "Sketch010")
body.addObject(sketch11)
sketch11.AttachmentSupport = (doc.XZ_Plane, [""])
sketch11.MapMode = "FlatFace"
sketch11.AttachmentOffset = App.Placement(Vector(0, 0, -45.275001), App.Rotation())
sketch11.addGeometry([
    Part.LineSegment(Vector(-40.2, -40.4, 0), Vector(-81.2, -40.4, 0)),  # 0
    Part.LineSegment(Vector(-81.2, -40.4, 0), Vector(-81.2, -38.3, 0)),  # 1
    Part.ArcOfCircle(Part.Circle(Vector(-77.2, -33.7, 0), Vector(0, 0, 1), 6.1), math.radians(-131), math.radians(48)),  # 2
    Part.LineSegment(Vector(-73.1, -29.2, 0), Vector(-17.5, -29.2, 0)),  # 3
    Part.ArcOfCircle(Part.Circle(Vector(-13.4, -33.7, 0), Vector(0, 0, 1), 6.1), math.radians(132), math.radians(408)),  # 4
    Part.LineSegment(Vector(-9.3, -29.2, 0), Vector(-2.2, -29.2, 0)),  # 5
    Part.LineSegment(Vector(-2.2, -29.2, 0), Vector(-2.2, -73.2, 0)),  # 6
    Part.LineSegment(Vector(-2.2, -73.2, 0), Vector(-9.3, -73.2, 0)),  # 7
    Part.ArcOfCircle(Part.Circle(Vector(-13.4, -68.7, 0), Vector(0, 0, 1), 6.1), math.radians(-48), math.radians(228)),  # 8
    Part.LineSegment(Vector(-17.5, -73.2, 0), Vector(-73.1, -73.2, 0)),  # 9
    Part.ArcOfCircle(Part.Circle(Vector(-77.2, -68.7, 0), Vector(0, 0, 1), 6.1), math.radians(-48), math.radians(131)),  # 10
    Part.LineSegment(Vector(-81.2, -64.1, 0), Vector(-81.2, -60.2, 0)),  # 11
    Part.LineSegment(Vector(-81.2, -60.2, 0), Vector(-40.2, -60.2, 0)),  # 12
    Part.LineSegment(Vector(-40.2, -60.2, 0), Vector(-40.2, -40.4, 0)),  # 13
], False)
sketch11.addConstraint([
    Sketcher.Constraint("Coincident", 0, 2, 1, 1),
    Sketcher.Constraint("Coincident", 1, 2, 2, 1),
    Sketcher.Constraint("Coincident", 2, 2, 3, 1),
    Sketcher.Constraint("Coincident", 3, 2, 4, 1),
    Sketcher.Constraint("Coincident", 4, 2, 5, 1),
    Sketcher.Constraint("Coincident", 5, 2, 6, 1),
    Sketcher.Constraint("Coincident", 6, 2, 7, 1),
    Sketcher.Constraint("Coincident", 7, 2, 8, 1),
    Sketcher.Constraint("Coincident", 8, 2, 9, 1),
    Sketcher.Constraint("Coincident", 9, 2, 10, 1),
    Sketcher.Constraint("Coincident", 10, 2, 11, 1),
    Sketcher.Constraint("Coincident", 11, 2, 12, 1),
    Sketcher.Constraint("Coincident", 12, 2, 13, 1),
    Sketcher.Constraint("Coincident", 13, 2, 0, 1),
    Sketcher.Constraint("Horizontal", 0),
    Sketcher.Constraint("Vertical", 1),
    Sketcher.Constraint("Horizontal", 3),
    Sketcher.Constraint("Horizontal", 5),
    Sketcher.Constraint("Vertical", 6),
    Sketcher.Constraint("Horizontal", 7),
    Sketcher.Constraint("Horizontal", 9),
    Sketcher.Constraint("Vertical", 11),
    Sketcher.Constraint("Horizontal", 12),
    Sketcher.Constraint("Vertical", 13),
    Sketcher.Constraint("Equal", 2, 4),
    Sketcher.Constraint("Equal", 4, 8),
    Sketcher.Constraint("Equal", 8, 10),
    Sketcher.Constraint("Horizontal", 2, 3, 4, 3),
    Sketcher.Constraint("Horizontal", 8, 3, 10, 3),
    Sketcher.Constraint("Horizontal", 3, 2, 4, 2),
    Sketcher.Constraint("Horizontal", 7, 2, 8, 2),
    Sketcher.Constraint("Vertical", 4, 3, 8, 3),
    Sketcher.Constraint("Vertical", 2, 3, 10, 3),
    Sketcher.Constraint("Vertical", 4, 2, 7, 2),
    Sketcher.Constraint("Vertical", 1, 2, 10, 2),
    Sketcher.Constraint("Radius", 2, Q("6.1 mm")),
    Sketcher.Constraint("DistanceY", 6, 2, 6, 1, Q("44 mm")),
    Sketcher.Constraint("DistanceY", 8, 3, 4, 3, Q("35 mm")),
    Sketcher.Constraint("DistanceX", 0, 2, 2, 3, Q("4 mm")),
    Sketcher.Constraint("DistanceY", 9, 2, 11, 2, Q("13 mm")),
    Sketcher.Constraint("DistanceX", 0, 2, 0, 1, Q("41.02 mm")),
    Sketcher.Constraint("DistanceY", 13, 1, 13, 2, Q("19.78 mm")),
    Sketcher.Constraint("DistanceX", 4, 3, 5, 2, Q("11.2 mm")),
    Sketcher.Constraint("DistanceX", 3, 1, 3, 2, Q("55.57913 mm")),
    Sketcher.Constraint("DistanceY", 2, 3, -1, 1, Q("33.702901 mm")),
    Sketcher.Constraint("DistanceX", 4, 3, -1, 1, Q("13.38301 mm")),
])
sketch11.setExpression("Constraints[35]", "Params.sketch11_radius")
sketch11.setExpression("Constraints[36]", "Params.sketch11_height")
sketch11.setExpression("Constraints[40]", "Params.sketch11_width")
sketch11.setExpression("Constraints[41]", "Params.sketch11_height2")
pad9 = doc.addObject("PartDesign::Pad", "Pad008")
body.addObject(pad9)
pad9.Profile = sketch11
pad9.setExpression("Length", "Params.pad9_length")

# Sketch on XZ plane
sketch12 = doc.addObject("Sketcher::SketchObject", "Sketch011")
body.addObject(sketch12)
sketch12.AttachmentSupport = (doc.XZ_Plane, [""])
sketch12.MapMode = "FlatFace"
sketch12.AttachmentOffset = App.Placement(Vector(0, 0, -45.275001), App.Rotation())
add_polygon(sketch12, [(-81, -60), (-81, -40), (-40, -40), (-40, -60)])  # lines 0-3
sketch12.addConstraint([
    Sketcher.Constraint("Vertical", 0),
    Sketcher.Constraint("Horizontal", 1),
    Sketcher.Constraint("Vertical", 2),
    Sketcher.Constraint("Horizontal", 3),
    Sketcher.Constraint("DistanceX", 1, 1, 1, 2, Q("41.02 mm")),
    Sketcher.Constraint("DistanceY", 0, 1, 0, 2, Q("19.78 mm")),
    Sketcher.Constraint("DistanceY", 0, 2, -1, 1, Q("40.422901 mm")),
    Sketcher.Constraint("DistanceX", 0, 2, -1, 1, Q("81.198644 mm")),
])
sketch12.setExpression("Constraints[8]", "Params.sketch12_width")
sketch12.setExpression("Constraints[9]", "Params.sketch12_height")
pad10 = doc.addObject("PartDesign::Pad", "Pad009")
body.addObject(pad10)
pad10.Profile = sketch12
pad10.setExpression("Length", "Params.pad10_length")

# Sketch on XZ plane
sketch13 = doc.addObject("Sketcher::SketchObject", "Sketch012")
body.addObject(sketch13)
sketch13.AttachmentSupport = (doc.XZ_Plane, [""])
sketch13.MapMode = "FlatFace"
sketch13.AttachmentOffset = App.Placement(Vector(0, 0, -45.275001), App.Rotation())
sketch13.addGeometry([
    Part.Circle(Vector(-77.2, -68.7, 0), Vector(0, 0, 1), 3.5),  # 0
    Part.Circle(Vector(-77.2, -68.7, 0), Vector(0, 0, 1), 1.8),  # 1
    Part.Circle(Vector(-77.2, -33.7, 0), Vector(0, 0, 1), 3.5),  # 2
    Part.Circle(Vector(-77.2, -33.7, 0), Vector(0, 0, 1), 1.8),  # 3
    Part.Circle(Vector(-13.4, -68.7, 0), Vector(0, 0, 1), 3.5),  # 4
    Part.Circle(Vector(-13.4, -68.7, 0), Vector(0, 0, 1), 1.8),  # 5
    Part.Circle(Vector(-13.4, -33.7, 0), Vector(0, 0, 1), 3.5),  # 6
    Part.Circle(Vector(-13.4, -33.7, 0), Vector(0, 0, 1), 1.8),  # 7
], False)
sketch13.addConstraint([
    Sketcher.Constraint("Coincident", 1, 3, 0, 3),
    Sketcher.Constraint("Coincident", 3, 3, 2, 3),
    Sketcher.Constraint("Coincident", 5, 3, 4, 3),
    Sketcher.Constraint("Coincident", 7, 3, 6, 3),
    Sketcher.Constraint("Equal", 0, 2),
    Sketcher.Constraint("Equal", 1, 3),
    Sketcher.Constraint("Equal", 2, 4),
    Sketcher.Constraint("Equal", 3, 5),
    Sketcher.Constraint("Equal", 4, 6),
    Sketcher.Constraint("Equal", 5, 7),
    Sketcher.Constraint("Horizontal", 1, 3, 4, 3),
    Sketcher.Constraint("Horizontal", 3, 3, 6, 3),
    Sketcher.Constraint("Vertical", 1, 3, 2, 3),
    Sketcher.Constraint("Vertical", 5, 3, 6, 3),
    Sketcher.Constraint("Diameter", 0, Q("7 mm")),
    Sketcher.Constraint("Diameter", 1, Q("3.5 mm")),
    Sketcher.Constraint("DistanceY", 0, 3, 2, 3, Q("35 mm")),
    Sketcher.Constraint("DistanceY", 0, 3, -1, 1, Q("68.702901 mm")),
    Sketcher.Constraint("DistanceX", 4, 3, -1, 1, Q("13.38301 mm")),
    Sketcher.Constraint("DistanceX", 0, 3, -1, 1, Q("77.198644 mm")),
])
sketch13.setExpression("Constraints[14]", "Params.sketch13_diameter")
sketch13.setExpression("Constraints[15]", "Params.sketch13_diameter2")
pocket3 = doc.addObject("PartDesign::Pocket", "Pocket002")
body.addObject(pocket3)
pocket3.Profile = sketch13
pocket3.setExpression("Length", "Params.pocket3_length")
pocket3.Reversed = True
doc.recompute()

fillet = doc.addObject("PartDesign::Fillet", "Fillet")
body.addObject(fillet)
fillet.Base = (pocket3, edges_at(pocket3, [
    (-86.199, 35.275, -78.203),
    (-86.199, 35.275, -24.203),
    (2.817, 35.275, -78.203),
    (2.817, 35.275, -24.203),
]))
fillet.setExpression("Radius", "Params.fillet_radius")
doc.recompute()

fillet2 = doc.addObject("PartDesign::Fillet", "Fillet001")
body.addObject(fillet2)
fillet2.Base = (fillet, edges_at(fillet, [
    (-41.691, 45.275, -24.203),
    (-86.199, 45.275, -51.203),
    (2.817, 45.275, -51.203),
    (-41.691, 45.275, -78.203),
    (-83.27, 45.275, -75.274),
    (-0.112, 45.275, -75.274),
    (-0.112, 45.275, -27.132),
    (-83.27, 45.275, -27.132),
]))
fillet2.setExpression("Radius", "Params.fillet2_radius")

# Sketch on XZ plane
sketch14 = doc.addObject("Sketcher::SketchObject", "Sketch013")
body.addObject(sketch14)
sketch14.AttachmentSupport = (doc.XZ_Plane, [""])
sketch14.MapMode = "FlatFace"
sketch14.AttachmentOffset = App.Placement(Vector(0, 0, -40.275001), App.Rotation())
add_polygon(sketch14, [(-4.7, -45.2), (-2.2, -45.2), (-2.2, -43.2), (-6.7, -43.2), (-6.7, -59.2), (-2.2, -59.2), (-2.2, -57.2), (-4.7, -57.2)])  # lines 0-7
sketch14.addConstraint([
    Sketcher.Constraint("Horizontal", 0),
    Sketcher.Constraint("Vertical", 1),
    Sketcher.Constraint("Horizontal", 2),
    Sketcher.Constraint("Vertical", 3),
    Sketcher.Constraint("Horizontal", 4),
    Sketcher.Constraint("Vertical", 5),
    Sketcher.Constraint("Horizontal", 6),
    Sketcher.Constraint("Vertical", 7),
    Sketcher.Constraint("Vertical", 1, 2, 4, 2),
    Sketcher.Constraint("Equal", 1, 5),
    Sketcher.Constraint("DistanceY", 1, 1, 1, 2, Q("2 mm")),
    Sketcher.Constraint("DistanceY", 3, 2, 3, 1, Q("16 mm")),
    Sketcher.Constraint("DistanceX", 0, 1, 0, 2, Q("2.5 mm")),
    Sketcher.Constraint("DistanceX", 2, 2, 2, 1, Q("4.5 mm")),
    Sketcher.Constraint("DistanceY", 0, 2, -1, 1, Q("45.202901 mm")),
    Sketcher.Constraint("DistanceX", 0, 2, -1, 1, Q("2.18301 mm")),
])
sketch14.setExpression("Constraints[18]", "Params.sketch14_height")
sketch14.setExpression("Constraints[19]", "Params.sketch14_height2")
sketch14.setExpression("Constraints[20]", "Params.sketch14_width")
sketch14.setExpression("Constraints[21]", "Params.sketch14_width2")
pad11 = doc.addObject("PartDesign::Pad", "Pad010")
body.addObject(pad11)
pad11.Profile = sketch14
pad11.setExpression("Length", "Params.pad11_length")

# Sketch on XZ plane
sketch15 = doc.addObject("Sketcher::SketchObject", "Sketch014")
body.addObject(sketch15)
sketch15.AttachmentSupport = (doc.XZ_Plane, [""])
sketch15.MapMode = "FlatFace"
sketch15.AttachmentOffset = App.Placement(Vector(0, 0, -40.275001), App.Rotation())
add_polygon(sketch15, [(-7, -63), (-7, -43), (-27, -43), (-27, -63)])  # lines 0-3
sketch15.addConstraint([
    Sketcher.Constraint("Vertical", 0),
    Sketcher.Constraint("Horizontal", 1),
    Sketcher.Constraint("Vertical", 2),
    Sketcher.Constraint("Horizontal", 3),
    Sketcher.Constraint("DistanceY", 0, 1, 0, 2, Q("19.4 mm")),
    Sketcher.Constraint("DistanceY", 0, 2, -1, 1, Q("43.202901 mm")),
    Sketcher.Constraint("DistanceX", 1, 2, 1, 1, Q("19.891337 mm")),
    Sketcher.Constraint("DistanceX", 0, 2, -1, 1, Q("6.68301 mm")),
])
sketch15.setExpression("Constraints[8]", "Params.sketch15_height")
pocket4 = doc.addObject("PartDesign::Pocket", "Pocket003")
body.addObject(pocket4)
pocket4.Profile = sketch15
pocket4.setExpression("Length", "Params.pocket4_length")
doc.recompute()

chamfer = doc.addObject("PartDesign::Chamfer", "Chamfer")
body.addObject(chamfer)
chamfer.Base = (pocket4, edges_at(pocket4, [(-81.199, 28.275, -51.203)]))
chamfer.setExpression("Size", "Params.chamfer_size")
body2 = doc.addObject("PartDesign::Body", "Body001")

# Sketch on XZ plane
sketch16 = doc.addObject("Sketcher::SketchObject", "Sketch015")
body2.addObject(sketch16)
sketch16.AttachmentSupport = (doc.getObject("XZ_Plane001"), [""])
sketch16.MapMode = "FlatFace"
sketch16.AttachmentOffset = App.Placement(Vector(0, 0, -40.275001), App.Rotation())
add_polygon(sketch16, [(-4.7, -45.2), (-4.7, -57.2), (-2.2, -57.2), (-2.2, -45.2)])  # lines 0-3
sketch16.addConstraint([
    Sketcher.Constraint("Vertical", 0),
    Sketcher.Constraint("Horizontal", 1),
    Sketcher.Constraint("Vertical", 2),
    Sketcher.Constraint("Horizontal", 3),
    Sketcher.Constraint("DistanceY", 0, 2, 0, 1, Q("12 mm")),
    Sketcher.Constraint("DistanceX", 1, 1, 1, 2, Q("2.5 mm")),
    Sketcher.Constraint("DistanceY", 0, 2, -1, 1, Q("57.202901 mm")),
    Sketcher.Constraint("DistanceX", 0, 2, -1, 1, Q("4.68301 mm")),
])
sketch16.setExpression("Constraints[8]", "Params.sketch16_height")
sketch16.setExpression("Constraints[9]", "Params.sketch16_width")
pad12 = doc.addObject("PartDesign::Pad", "Pad011")
body2.addObject(pad12)
pad12.Profile = sketch16
pad12.setExpression("Length", "Params.pad12_length")

doc.recompute()
